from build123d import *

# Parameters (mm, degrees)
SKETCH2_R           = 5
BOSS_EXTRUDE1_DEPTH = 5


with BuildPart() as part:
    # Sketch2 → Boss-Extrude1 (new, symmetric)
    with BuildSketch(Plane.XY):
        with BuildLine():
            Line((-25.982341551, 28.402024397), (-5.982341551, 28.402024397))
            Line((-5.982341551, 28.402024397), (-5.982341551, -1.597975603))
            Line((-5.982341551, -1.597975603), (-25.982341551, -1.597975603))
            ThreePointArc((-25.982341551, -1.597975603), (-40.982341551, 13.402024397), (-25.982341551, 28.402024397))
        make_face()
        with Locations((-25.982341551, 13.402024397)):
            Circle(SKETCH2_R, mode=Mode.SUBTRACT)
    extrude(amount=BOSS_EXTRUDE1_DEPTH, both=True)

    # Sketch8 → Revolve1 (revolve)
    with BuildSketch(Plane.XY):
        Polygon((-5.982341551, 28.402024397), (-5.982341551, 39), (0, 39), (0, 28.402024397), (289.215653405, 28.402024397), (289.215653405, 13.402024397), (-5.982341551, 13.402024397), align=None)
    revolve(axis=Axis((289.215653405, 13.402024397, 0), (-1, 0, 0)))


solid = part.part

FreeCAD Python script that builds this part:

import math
import FreeCAD as App
import Part
import Sketcher
from FreeCAD import Vector
Q = App.Units.Quantity


def add_polygon(sketch, points):
    """Adds a closed chain of lines whose ends are joined by coincident constraints."""
    first, n = sketch.GeometryCount, len(points)
    for a, b in zip(points, points[1:] + points[:1]):
        sketch.addGeometry(Part.LineSegment(App.Vector(*a, 0), App.Vector(*b, 0)), False)
    for i in range(n):
        sketch.addConstraint(Sketcher.Constraint("Coincident", first + i, 2, first + (i + 1) % n, 1))

doc = App.newDocument("Part")
body = doc.addObject("PartDesign::Body", "Body")

# Sketch on XY plane
sketch1 = body.newObject("Sketcher::SketchObject", "Sketch")
sketch1.AttachmentSupport = (doc.getObject("XY_Plane"), [""])
sketch1.MapMode = "FlatFace"
sketch1.addGeometry([
    Part.LineSegment(Vector(-6, 28, 0), Vector(-26, 28, 0)),  # 0
    Part.ArcOfCircle(Part.Circle(Vector(-26, 13, 0), Vector(0, 0, 1), 15), math.radians(90), math.radians(270)),  # 1
    Part.LineSegment(Vector(-26, -2, 0), Vector(-6, -2, 0)),  # 2
    Part.LineSegment(Vector(-6, -2, 0), Vector(-6, 28, 0)),  # 3
    Part.Circle(Vector(-26, 13, 0), Vector(0, 0, 1), 5),  # 4
], False)
sketch1.addConstraint([
    Sketcher.Constraint("Tangent", 0, 2, 1, 1),
    Sketcher.Constraint("Tangent", 1, 2, 2, 1),
    Sketcher.Constraint("Coincident", 2, 2, 3, 1),
    Sketcher.Constraint("Coincident", 3, 2, 0, 1),
    Sketcher.Constraint("Horizontal", 0),
    Sketcher.Constraint("Horizontal", 2),
    Sketcher.Constraint("Vertical", 3),
    Sketcher.Constraint("Coincident", 4, 3, 1, 3),
    Sketcher.Constraint("Diameter", 4, Q("10 mm")),
    Sketcher.Constraint("Radius", 1, Q("15 mm")),
    Sketcher.Constraint("DistanceX", 0, 2, 0, 1, Q("20 mm")),
    Sketcher.Constraint("DistanceX", 1, 3, -1, 1, Q("25.982342 mm")),
    Sketcher.Constraint("DistanceY", -1, 1, 1, 3, Q("13.402024 mm")),
])
pad1 = body.newObject("PartDesign::Pad", "Pad")
pad1.Profile = sketch1
pad1.Length = 10
pad1.Midplane = True

# Sketch on XY plane
sketch2 = body.newObject("Sketcher::SketchObject", "Sketch001")
sketch2.AttachmentSupport = (doc.getObject("XY_Plane"), [""])
sketch2.MapMode = "FlatFace"
add_polygon(sketch2, [(-6, 39), (-6, 13), (289, 13), (289, 28), (0, 28), (0, 39)])  # lines 0-5
sketch2.addGeometry(Part.LineSegment(Vector(289, 13, 0), Vector(-6, 13, 0)), True)  # axis
sketch2.addConstraint([
    Sketcher.Constraint("Vertical", 0),
    Sketcher.Constraint("Horizontal", 1),
    Sketcher.Constraint("Vertical", 2),
    Sketcher.Constraint("Horizontal", 3),
    Sketcher.Constraint("Vertical", 4),
    Sketcher.Constraint("Horizontal", 5),
    Sketcher.Constraint("Horizontal", 6),
    Sketcher.Constraint("Coincident", 6, 1, 1, 2),
    Sketcher.Constraint("PointOnObject", 3, 2, -2),
    Sketcher.Constraint("Vertical", 5, 2, 6, 2),
    Sketcher.Constraint("DistanceY", 2, 1, 2, 2, Q("15 mm")),
    Sketcher.Constraint("DistanceY", -1, 1, 4, 2, Q("39 mm")),
    Sketcher.Constraint("DistanceX", 5, 2, 5, 1, Q("5.982342 mm")),
    Sketcher.Constraint("DistanceX", 1, 1, 1, 2, Q("295.197995 mm")),
    Sketcher.Constraint("DistanceY", 0, 2, 0, 1, Q("25.597976 mm")),
])
revolution = body.newObject("PartDesign::Revolution", "Revolution")
revolution.Profile = sketch2
revolution.ReferenceAxis = (sketch2, ["Axis0"])
revolution.Angle = 360

doc.recompute()
